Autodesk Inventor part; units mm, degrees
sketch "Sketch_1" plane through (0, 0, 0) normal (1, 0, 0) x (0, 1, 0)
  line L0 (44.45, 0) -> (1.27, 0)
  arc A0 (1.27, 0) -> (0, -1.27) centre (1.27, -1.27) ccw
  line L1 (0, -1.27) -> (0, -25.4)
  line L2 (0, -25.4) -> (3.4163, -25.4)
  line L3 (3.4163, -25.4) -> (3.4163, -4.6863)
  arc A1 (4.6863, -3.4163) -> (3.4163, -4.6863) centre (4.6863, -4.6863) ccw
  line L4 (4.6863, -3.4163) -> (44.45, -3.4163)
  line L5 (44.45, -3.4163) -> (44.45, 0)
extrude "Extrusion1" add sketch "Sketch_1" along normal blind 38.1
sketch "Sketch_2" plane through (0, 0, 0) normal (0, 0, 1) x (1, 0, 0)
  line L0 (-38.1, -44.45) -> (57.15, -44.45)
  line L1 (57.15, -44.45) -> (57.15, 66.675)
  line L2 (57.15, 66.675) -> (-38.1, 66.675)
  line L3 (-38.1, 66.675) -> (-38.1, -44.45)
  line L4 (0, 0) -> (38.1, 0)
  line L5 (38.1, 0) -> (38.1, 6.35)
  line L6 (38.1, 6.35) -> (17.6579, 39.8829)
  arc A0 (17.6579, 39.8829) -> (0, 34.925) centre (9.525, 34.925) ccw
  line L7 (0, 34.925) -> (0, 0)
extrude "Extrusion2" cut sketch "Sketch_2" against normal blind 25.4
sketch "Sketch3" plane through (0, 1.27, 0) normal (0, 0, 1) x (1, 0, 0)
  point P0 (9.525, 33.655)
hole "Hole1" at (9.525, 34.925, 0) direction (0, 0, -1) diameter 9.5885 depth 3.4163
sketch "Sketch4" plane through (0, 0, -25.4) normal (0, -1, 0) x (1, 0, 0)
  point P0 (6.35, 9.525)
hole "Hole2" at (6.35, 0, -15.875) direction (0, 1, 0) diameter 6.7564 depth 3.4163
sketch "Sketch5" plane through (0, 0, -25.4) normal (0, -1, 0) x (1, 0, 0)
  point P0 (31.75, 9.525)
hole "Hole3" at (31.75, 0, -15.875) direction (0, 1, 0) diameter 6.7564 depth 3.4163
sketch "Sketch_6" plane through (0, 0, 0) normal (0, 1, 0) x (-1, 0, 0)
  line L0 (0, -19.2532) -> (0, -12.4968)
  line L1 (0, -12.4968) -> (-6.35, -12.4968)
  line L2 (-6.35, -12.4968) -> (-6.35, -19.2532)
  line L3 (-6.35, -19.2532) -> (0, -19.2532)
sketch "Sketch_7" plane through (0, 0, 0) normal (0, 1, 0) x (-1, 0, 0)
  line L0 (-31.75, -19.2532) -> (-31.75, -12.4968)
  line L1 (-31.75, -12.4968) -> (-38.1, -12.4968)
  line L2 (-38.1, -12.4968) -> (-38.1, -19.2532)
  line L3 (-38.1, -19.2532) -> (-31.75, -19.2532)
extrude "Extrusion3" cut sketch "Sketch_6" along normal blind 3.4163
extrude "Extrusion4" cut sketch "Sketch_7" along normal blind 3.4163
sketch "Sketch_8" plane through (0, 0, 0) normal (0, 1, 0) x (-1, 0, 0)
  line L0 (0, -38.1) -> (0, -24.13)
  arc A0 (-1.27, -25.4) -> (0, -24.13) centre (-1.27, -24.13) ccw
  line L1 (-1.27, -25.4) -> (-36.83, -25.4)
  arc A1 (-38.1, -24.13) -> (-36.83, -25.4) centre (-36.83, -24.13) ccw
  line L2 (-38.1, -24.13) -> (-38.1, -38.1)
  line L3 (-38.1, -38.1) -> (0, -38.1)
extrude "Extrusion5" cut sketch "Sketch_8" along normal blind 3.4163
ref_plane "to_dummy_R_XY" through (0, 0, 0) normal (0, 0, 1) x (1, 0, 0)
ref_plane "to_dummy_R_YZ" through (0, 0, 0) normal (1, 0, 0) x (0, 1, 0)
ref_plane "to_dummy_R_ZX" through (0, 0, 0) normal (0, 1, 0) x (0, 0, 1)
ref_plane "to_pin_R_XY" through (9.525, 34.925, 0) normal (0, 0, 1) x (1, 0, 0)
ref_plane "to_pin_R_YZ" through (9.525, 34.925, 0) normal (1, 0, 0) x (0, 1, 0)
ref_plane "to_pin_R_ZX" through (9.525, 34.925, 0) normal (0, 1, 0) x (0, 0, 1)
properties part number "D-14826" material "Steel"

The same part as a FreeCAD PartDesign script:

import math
import FreeCAD as App
import Part
import Sketcher
from FreeCAD import Vector
Q = App.Units.Quantity

doc = App.newDocument("Part")
body = doc.addObject("PartDesign::Body", "Body")

# Sketch on YZ plane
sketch1 = body.newObject("Sketcher::SketchObject", "Sketch")
sketch1.AttachmentSupport = (doc.getObject("YZ_Plane"), [""])
sketch1.MapMode = "FlatFace"
sketch1.addGeometry([
    Part.LineSegment(Vector(44.5, -3.4, 0), Vector(44.5, 0, 0)),  # 0
    Part.LineSegment(Vector(44.5, 0, 0), Vector(1.3, 0, 0)),  # 1
    Part.ArcOfCircle(Part.Circle(Vector(1.3, -1.3, 0), Vector(0, 0, 1), 1.3), math.radians(90), math.radians(180)),  # 2
    Part.LineSegment(Vector(0, -1.3, 0), Vector(0, -25.4, 0)),  # 3
    Part.LineSegment(Vector(0, -25.4, 0), Vector(3.4, -25.4, 0)),  # 4
    Part.LineSegment(Vector(3.4, -25.4, 0), Vector(3.4, -4.7, 0)),  # 5
    Part.ArcOfCircle(Part.Circle(Vector(4.7, -4.7, 0), Vector(0, 0, 1), 1.3), math.radians(90), math.radians(180)),  # 6
    Part.LineSegment(Vector(4.7, -3.4, 0), Vector(44.5, -3.4, 0)),  # 7
], False)
sketch1.addConstraint([
    Sketcher.Constraint("Coincident", 0, 2, 1, 1),
    Sketcher.Constraint("Tangent", 1, 2, 2, 1),
    Sketcher.Constraint("Tangent", 2, 2, 3, 1),
    Sketcher.Constraint("Coincident", 3, 2, 4, 1),
    Sketcher.Constraint("Coincident", 4, 2, 5, 1),
    Sketcher.Constraint("Tangent", 5, 2, 6, 2),
    Sketcher.Constraint("Tangent", 6, 1, 7, 1),
    Sketcher.Constraint("Coincident", 7, 2, 0, 1),
    Sketcher.Constraint("Vertical", 0),
    Sketcher.Constraint("Horizontal", 1),
    Sketcher.Constraint("Vertical", 3),
    Sketcher.Constraint("Horizontal", 4),
    Sketcher.Constraint("Vertical", 5),
    Sketcher.Constraint("Horizontal", 7),
    Sketcher.Constraint("Equal", 2, 6),
    Sketcher.Constraint("PointOnObject", 0, 2, -1),
    Sketcher.Constraint("PointOnObject", 2, 2, -2),
    Sketcher.Constraint("Equal", 4, 0),
    Sketcher.Constraint("Radius", 2, Q("0.05 in")),
    Sketcher.Constraint("DistanceX", 1, 2, 1, 1, Q("1.7 in")),
    Sketcher.Constraint("DistanceY", 3, 2, -1, 1, Q("1 in")),
    Sketcher.Constraint("DistanceX", 4, 1, 4, 2, Q("0.1345 in")),
])
pad1 = body.newObject("PartDesign::Pad", "Pad")
pad1.Profile = sketch1
pad1.Length = Q("1.5 in")

# Sketch on XY plane
sketch2 = body.newObject("Sketcher::SketchObject", "Sketch001")
sketch2.AttachmentSupport = (doc.getObject("XY_Plane"), [""])
sketch2.MapMode = "FlatFace"
sketch2.addGeometry([
    Part.LineSegment(Vector(-38, 67, 0), Vector(-38, -44, 0)),  # 0
    Part.LineSegment(Vector(-38, -44, 0), Vector(57, -44, 0)),  # 1
    Part.LineSegment(Vector(57, -44, 0), Vector(57, 67, 0)),  # 2
    Part.LineSegment(Vector(57, 67, 0), Vector(-38, 67, 0)),  # 3
    Part.LineSegment(Vector(38, 0, 0), Vector(0, 0, 0)),  # 4
    Part.LineSegment(Vector(0, 0, 0), Vector(0, 35, 0)),  # 5
    Part.ArcOfCircle(Part.Circle(Vector(10, 35, 0), Vector(0, 0, 1), 10), math.radians(31), math.radians(180)),  # 6
    Part.LineSegment(Vector(18, 40, 0), Vector(38, 6, 0)),  # 7
    Part.LineSegment(Vector(38, 6, 0), Vector(38, 0, 0)),  # 8
], False)
sketch2.addConstraint([
    Sketcher.Constraint("Coincident", 0, 2, 1, 1),
    Sketcher.Constraint("Coincident", 1, 2, 2, 1),
    Sketcher.Constraint("Coincident", 2, 2, 3, 1),
    Sketcher.Constraint("Coincident", 3, 2, 0, 1),
    Sketcher.Constraint("Coincident", 4, 2, 5, 1),
    Sketcher.Constraint("Tangent", 5, 2, 6, 2),
    Sketcher.Constraint("Tangent", 6, 1, 7, 1),
    Sketcher.Constraint("Coincident", 7, 2, 8, 1),
    Sketcher.Constraint("Coincident", 8, 2, 4, 1),
    Sketcher.Constraint("Vertical", 0),
    Sketcher.Constraint("Horizontal", 1),
    Sketcher.Constraint("Vertical", 2),
    Sketcher.Constraint("Horizontal", 3),
    Sketcher.Constraint("Horizontal", 4),
    Sketcher.Constraint("Vertical", 5),
    Sketcher.Constraint("Vertical", 8),
    Sketcher.Constraint("Coincident", 4, 2, -1, 1),
    Sketcher.Constraint("DistanceX", 4, 2, 4, 1, Q("1.5 in")),
    Sketcher.Constraint("Radius", 6, Q("0.375 in")),
    Sketcher.Constraint("DistanceY", 1, 2, 7, 2, Q("2 in")),
    Sketcher.Constraint("DistanceX", 1, 1, 1, 2, Q("3.75 in")),
    Sketcher.Constraint("DistanceY", 8, 2, 8, 1, Q("0.25 in")),
    Sketcher.Constraint("DistanceX", 0, 2, -1, 1, Q("1.5 in")),
    Sketcher.Constraint("DistanceY", 0, 2, 0, 1, Q("4.375 in")),
    Sketcher.Constraint("DistanceY", 5, 1, 5, 2, Q("1.375 in")),
])
pocket1 = body.newObject("PartDesign::Pocket", "Pocket")
pocket1.Profile = sketch2
pocket1.Length = Q("1 in")

# Sketch on XY plane
sketch3 = body.newObject("Sketcher::SketchObject", "Sketch002")
sketch3.AttachmentSupport = (doc.getObject("XY_Plane"), [""])
sketch3.MapMode = "FlatFace"
sketch3.addGeometry(Part.Circle(Vector(9.5, 34.9, 0), Vector(0, 0, 1), 4.8), False)
sketch3.addConstraint([
    Sketcher.Constraint("Diameter", 0, Q("0.3775 in")),
    Sketcher.Constraint("DistanceX", -1, 1, 0, 3, Q("0.375 in")),
    Sketcher.Constraint("DistanceY", -1, 1, 0, 3, Q("1.375 in")),
])
doc.recompute()
hole = body.newObject("PartDesign::Hole", "Hole")
hole.Profile = sketch3
hole.ThreadType = "None"
hole.Diameter = Q("0.3775 in")
hole.DepthType = "Dimension"
hole.Depth = Q("0.1345 in")
hole.DrillPoint = "Flat"

# Sketch on XZ plane
sketch4 = body.newObject("Sketcher::SketchObject", "Sketch003")
sketch4.AttachmentSupport = (doc.getObject("XZ_Plane"), [""])
sketch4.MapMode = "FlatFace"
sketch4.addGeometry(Part.Circle(Vector(6.3, -15.9, 0), Vector(0, 0, 1), 3.4), False)
sketch4.addConstraint([
    Sketcher.Constraint("Diameter", 0, Q("0.266 in")),
    Sketcher.Constraint("DistanceX", -1, 1, 0, 3, Q("0.25 in")),
    Sketcher.Constraint("DistanceY", 0, 3, -1, 1, Q("0.625 in")),
])
doc.recompute()
hole2 = body.newObject("PartDesign::Hole", "Hole001")
hole2.Profile = sketch4
hole2.ThreadType = "None"
hole2.Diameter = Q("0.266 in")
hole2.DepthType = "Dimension"
hole2.Depth = Q("0.1345 in")
hole2.DrillPoint = "Flat"

# Sketch on XZ plane
sketch5 = body.newObject("Sketcher::SketchObject", "Sketch004")
sketch5.AttachmentSupport = (doc.getObject("XZ_Plane"), [""])
sketch5.MapMode = "FlatFace"
sketch5.addGeometry(Part.Circle(Vector(31.8, -15.9, 0), Vector(0, 0, 1), 3.4), False)
sketch5.addConstraint([
    Sketcher.Constraint("Diameter", 0, Q("0.266 in")),
    Sketcher.Constraint("DistanceX", -1, 1, 0, 3, Q("1.25 in")),
    Sketcher.Constraint("DistanceY", 0, 3, -1, 1, Q("0.625 in")),
])
doc.recompute()
hole3 = body.newObject("PartDesign::Hole", "Hole002")
hole3.Profile = sketch5
hole3.ThreadType = "None"
hole3.Diameter = Q("0.266 in")
hole3.DepthType = "Dimension"
hole3.Depth = Q("0.1345 in")
hole3.DrillPoint = "Flat"

# Sketch on XZ plane
sketch6 = body.newObject("Sketcher::SketchObject", "Sketch005")
sketch6.AttachmentSupport = (doc.getObject("XZ_Plane"), [""])
sketch6.MapMode = "FlatFace"
sketch6.addGeometry([
    Part.LineSegment(Vector(6, -19, 0), Vector(0, -19, 0)),
    Part.LineSegment(Vector(0, -19, 0), Vector(0, -12, 0)),
    Part.LineSegment(Vector(0, -12, 0), Vector(6, -12, 0)),
    Part.LineSegment(Vector(6, -12, 0), Vector(6, -19, 0)),
], False)
sketch6.addConstraint([
    Sketcher.Constraint("Coincident", 0, 2, 1, 1),
    Sketcher.Constraint("Coincident", 1, 2, 2, 1),
    Sketcher.Constraint("Coincident", 2, 2, 3, 1),
    Sketcher.Constraint("Coincident", 3, 2, 0, 1),
    Sketcher.Constraint("Horizontal", 0),
    Sketcher.Constraint("Vertical", 1),
    Sketcher.Constraint("Horizontal", 2),
    Sketcher.Constraint("Vertical", 3),
    Sketcher.Constraint("PointOnObject", 0, 2, -2),
    Sketcher.Constraint("DistanceX", 0, 2, 0, 1, Q("0.25 in")),
    Sketcher.Constraint("DistanceY", 1, 1, 1, 2, Q("0.266 in")),
    Sketcher.Constraint("DistanceY", 0, 2, -1, 1, Q("0.758 in")),
])
pocket2 = body.newObject("PartDesign::Pocket", "Pocket001")
pocket2.Profile = sketch6
pocket2.Length = Q("0.1345 in")

# Sketch on XZ plane
sketch7 = body.newObject("Sketcher::SketchObject", "Sketch006")
sketch7.AttachmentSupport = (doc.getObject("XZ_Plane"), [""])
sketch7.MapMode = "FlatFace"
sketch7.addGeometry([
    Part.LineSegment(Vector(38, -19, 0), Vector(32, -19, 0)),
    Part.LineSegment(Vector(32, -19, 0), Vector(32, -12, 0)),
    Part.LineSegment(Vector(32, -12, 0), Vector(38, -12, 0)),
    Part.LineSegment(Vector(38, -12, 0), Vector(38, -19, 0)),
], False)
sketch7.addConstraint([
    Sketcher.Constraint("Coincident", 0, 2, 1, 1),
    Sketcher.Constraint("Coincident", 1, 2, 2, 1),
    Sketcher.Constraint("Coincident", 2, 2, 3, 1),
    Sketcher.Constraint("Coincident", 3, 2, 0, 1),
    Sketcher.Constraint("Horizontal", 0),
    Sketcher.Constraint("Vertical", 1),
    Sketcher.Constraint("Horizontal", 2),
    Sketcher.Constraint("Vertical", 3),
    Sketcher.Constraint("DistanceX", 0, 2, 0, 1, Q("0.25 in")),
    Sketcher.Constraint("DistanceX", -1, 1, 2, 2, Q("1.5 in")),
    Sketcher.Constraint("DistanceY", 1, 1, 1, 2, Q("0.266 in")),
    Sketcher.Constraint("DistanceY", 0, 2, -1, 1, Q("0.758 in")),
])
pocket3 = body.newObject("PartDesign::Pocket", "Pocket002")
pocket3.Profile = sketch7
pocket3.Length = Q("0.1345 in")

# Sketch on XZ plane
sketch8 = body.newObject("Sketcher::SketchObject", "Sketch007")
sketch8.AttachmentSupport = (doc.getObject("XZ_Plane"), [""])
sketch8.MapMode = "FlatFace"
sketch8.addGeometry([
    Part.LineSegment(Vector(38.1, -38.1, 0), Vector(0, -38.1, 0)),  # 0
    Part.LineSegment(Vector(0, -38.1, 0), Vector(0, -24.1, 0)),  # 1
    Part.ArcOfCircle(Part.Circle(Vector(1.3, -24.1, 0), Vector(0, 0, 1), 1.3), math.radians(180), math.radians(270)),  # 2
    Part.LineSegment(Vector(1.3, -25.4, 0), Vector(36.8, -25.4, 0)),  # 3
    Part.ArcOfCircle(Part.Circle(Vector(36.8, -24.1, 0), Vector(0, 0, 1), 1.3), math.radians(-90), math.radians(0)),  # 4
    Part.LineSegment(Vector(38.1, -24.1, 0), Vector(38.1, -38.1, 0)),  # 5
], False)
sketch8.addConstraint([
    Sketcher.Constraint("Coincident", 0, 2, 1, 1),
    Sketcher.Constraint("Tangent", 1, 2, 2, 1),
    Sketcher.Constraint("Tangent", 2, 2, 3, 1),
    Sketcher.Constraint("Tangent", 3, 2, 4, 1),
    Sketcher.Constraint("Tangent", 4, 2, 5, 1),
    Sketcher.Constraint("Coincident", 5, 2, 0, 1),
    Sketcher.Constraint("Horizontal", 0),
    Sketcher.Constraint("Vertical", 1),
    Sketcher.Constraint("Horizontal", 3),
    Sketcher.Constraint("Vertical", 5),
    Sketcher.Constraint("Equal", 2, 4),
    Sketcher.Constraint("PointOnObject", 0, 2, -2),
    Sketcher.Constraint("Radius", 2, Q("0.05 in")),
    Sketcher.Constraint("DistanceX", 0, 2, 0, 1, Q("1.5 in")),
    Sketcher.Constraint("DistanceY", 2, 2, -1, 1, Q("1 in")),
    Sketcher.Constraint("DistanceY", 1, 1, 1, 2, Q("0.55 in")),
])
pocket4 = body.newObject("PartDesign::Pocket", "Pocket003")
pocket4.Profile = sketch8
pocket4.Length = Q("0.1345 in")

doc.recompute()
